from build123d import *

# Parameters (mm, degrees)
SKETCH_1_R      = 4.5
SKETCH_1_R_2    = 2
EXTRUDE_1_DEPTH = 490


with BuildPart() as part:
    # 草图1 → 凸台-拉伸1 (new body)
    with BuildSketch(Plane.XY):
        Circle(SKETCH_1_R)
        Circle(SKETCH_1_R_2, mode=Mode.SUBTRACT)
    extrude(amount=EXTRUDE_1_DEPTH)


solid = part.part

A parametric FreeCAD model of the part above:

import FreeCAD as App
import Part
import Sketcher

V = App.Vector
Q = App.Units.Quantity

doc = App.newDocument("Part")
body = doc.addObject("PartDesign::Body", "Body")

# Sketch on XY plane
sketch1 = body.newObject("Sketcher::SketchObject", "Sketch")
sketch1.AttachmentSupport = (doc.getObject("XY_Plane"), [""])
sketch1.MapMode = "FlatFace"
sketch1.addGeometry(Part.Circle(V(0, 0, 0), V(0, 0, 1), 4.5), False)
sketch1.addGeometry(Part.Circle(V(0, 0, 0), V(0, 0, 1), 2), False)
sketch1.addConstraint(Sketcher.Constraint("Coincident", 0, 3, -1, 1))
sketch1.addConstraint(Sketcher.Constraint("Coincident", 1, 3, -1, 1))
sketch1.addConstraint(Sketcher.Constraint("Diameter", 0, Q("9 mm")))
sketch1.addConstraint(Sketcher.Constraint("Diameter", 1, Q("4 mm")))
pad1 = body.newObject("PartDesign::Pad", "Pad")
pad1.Profile = sketch1
pad1.Length = 490

doc.recompute()
